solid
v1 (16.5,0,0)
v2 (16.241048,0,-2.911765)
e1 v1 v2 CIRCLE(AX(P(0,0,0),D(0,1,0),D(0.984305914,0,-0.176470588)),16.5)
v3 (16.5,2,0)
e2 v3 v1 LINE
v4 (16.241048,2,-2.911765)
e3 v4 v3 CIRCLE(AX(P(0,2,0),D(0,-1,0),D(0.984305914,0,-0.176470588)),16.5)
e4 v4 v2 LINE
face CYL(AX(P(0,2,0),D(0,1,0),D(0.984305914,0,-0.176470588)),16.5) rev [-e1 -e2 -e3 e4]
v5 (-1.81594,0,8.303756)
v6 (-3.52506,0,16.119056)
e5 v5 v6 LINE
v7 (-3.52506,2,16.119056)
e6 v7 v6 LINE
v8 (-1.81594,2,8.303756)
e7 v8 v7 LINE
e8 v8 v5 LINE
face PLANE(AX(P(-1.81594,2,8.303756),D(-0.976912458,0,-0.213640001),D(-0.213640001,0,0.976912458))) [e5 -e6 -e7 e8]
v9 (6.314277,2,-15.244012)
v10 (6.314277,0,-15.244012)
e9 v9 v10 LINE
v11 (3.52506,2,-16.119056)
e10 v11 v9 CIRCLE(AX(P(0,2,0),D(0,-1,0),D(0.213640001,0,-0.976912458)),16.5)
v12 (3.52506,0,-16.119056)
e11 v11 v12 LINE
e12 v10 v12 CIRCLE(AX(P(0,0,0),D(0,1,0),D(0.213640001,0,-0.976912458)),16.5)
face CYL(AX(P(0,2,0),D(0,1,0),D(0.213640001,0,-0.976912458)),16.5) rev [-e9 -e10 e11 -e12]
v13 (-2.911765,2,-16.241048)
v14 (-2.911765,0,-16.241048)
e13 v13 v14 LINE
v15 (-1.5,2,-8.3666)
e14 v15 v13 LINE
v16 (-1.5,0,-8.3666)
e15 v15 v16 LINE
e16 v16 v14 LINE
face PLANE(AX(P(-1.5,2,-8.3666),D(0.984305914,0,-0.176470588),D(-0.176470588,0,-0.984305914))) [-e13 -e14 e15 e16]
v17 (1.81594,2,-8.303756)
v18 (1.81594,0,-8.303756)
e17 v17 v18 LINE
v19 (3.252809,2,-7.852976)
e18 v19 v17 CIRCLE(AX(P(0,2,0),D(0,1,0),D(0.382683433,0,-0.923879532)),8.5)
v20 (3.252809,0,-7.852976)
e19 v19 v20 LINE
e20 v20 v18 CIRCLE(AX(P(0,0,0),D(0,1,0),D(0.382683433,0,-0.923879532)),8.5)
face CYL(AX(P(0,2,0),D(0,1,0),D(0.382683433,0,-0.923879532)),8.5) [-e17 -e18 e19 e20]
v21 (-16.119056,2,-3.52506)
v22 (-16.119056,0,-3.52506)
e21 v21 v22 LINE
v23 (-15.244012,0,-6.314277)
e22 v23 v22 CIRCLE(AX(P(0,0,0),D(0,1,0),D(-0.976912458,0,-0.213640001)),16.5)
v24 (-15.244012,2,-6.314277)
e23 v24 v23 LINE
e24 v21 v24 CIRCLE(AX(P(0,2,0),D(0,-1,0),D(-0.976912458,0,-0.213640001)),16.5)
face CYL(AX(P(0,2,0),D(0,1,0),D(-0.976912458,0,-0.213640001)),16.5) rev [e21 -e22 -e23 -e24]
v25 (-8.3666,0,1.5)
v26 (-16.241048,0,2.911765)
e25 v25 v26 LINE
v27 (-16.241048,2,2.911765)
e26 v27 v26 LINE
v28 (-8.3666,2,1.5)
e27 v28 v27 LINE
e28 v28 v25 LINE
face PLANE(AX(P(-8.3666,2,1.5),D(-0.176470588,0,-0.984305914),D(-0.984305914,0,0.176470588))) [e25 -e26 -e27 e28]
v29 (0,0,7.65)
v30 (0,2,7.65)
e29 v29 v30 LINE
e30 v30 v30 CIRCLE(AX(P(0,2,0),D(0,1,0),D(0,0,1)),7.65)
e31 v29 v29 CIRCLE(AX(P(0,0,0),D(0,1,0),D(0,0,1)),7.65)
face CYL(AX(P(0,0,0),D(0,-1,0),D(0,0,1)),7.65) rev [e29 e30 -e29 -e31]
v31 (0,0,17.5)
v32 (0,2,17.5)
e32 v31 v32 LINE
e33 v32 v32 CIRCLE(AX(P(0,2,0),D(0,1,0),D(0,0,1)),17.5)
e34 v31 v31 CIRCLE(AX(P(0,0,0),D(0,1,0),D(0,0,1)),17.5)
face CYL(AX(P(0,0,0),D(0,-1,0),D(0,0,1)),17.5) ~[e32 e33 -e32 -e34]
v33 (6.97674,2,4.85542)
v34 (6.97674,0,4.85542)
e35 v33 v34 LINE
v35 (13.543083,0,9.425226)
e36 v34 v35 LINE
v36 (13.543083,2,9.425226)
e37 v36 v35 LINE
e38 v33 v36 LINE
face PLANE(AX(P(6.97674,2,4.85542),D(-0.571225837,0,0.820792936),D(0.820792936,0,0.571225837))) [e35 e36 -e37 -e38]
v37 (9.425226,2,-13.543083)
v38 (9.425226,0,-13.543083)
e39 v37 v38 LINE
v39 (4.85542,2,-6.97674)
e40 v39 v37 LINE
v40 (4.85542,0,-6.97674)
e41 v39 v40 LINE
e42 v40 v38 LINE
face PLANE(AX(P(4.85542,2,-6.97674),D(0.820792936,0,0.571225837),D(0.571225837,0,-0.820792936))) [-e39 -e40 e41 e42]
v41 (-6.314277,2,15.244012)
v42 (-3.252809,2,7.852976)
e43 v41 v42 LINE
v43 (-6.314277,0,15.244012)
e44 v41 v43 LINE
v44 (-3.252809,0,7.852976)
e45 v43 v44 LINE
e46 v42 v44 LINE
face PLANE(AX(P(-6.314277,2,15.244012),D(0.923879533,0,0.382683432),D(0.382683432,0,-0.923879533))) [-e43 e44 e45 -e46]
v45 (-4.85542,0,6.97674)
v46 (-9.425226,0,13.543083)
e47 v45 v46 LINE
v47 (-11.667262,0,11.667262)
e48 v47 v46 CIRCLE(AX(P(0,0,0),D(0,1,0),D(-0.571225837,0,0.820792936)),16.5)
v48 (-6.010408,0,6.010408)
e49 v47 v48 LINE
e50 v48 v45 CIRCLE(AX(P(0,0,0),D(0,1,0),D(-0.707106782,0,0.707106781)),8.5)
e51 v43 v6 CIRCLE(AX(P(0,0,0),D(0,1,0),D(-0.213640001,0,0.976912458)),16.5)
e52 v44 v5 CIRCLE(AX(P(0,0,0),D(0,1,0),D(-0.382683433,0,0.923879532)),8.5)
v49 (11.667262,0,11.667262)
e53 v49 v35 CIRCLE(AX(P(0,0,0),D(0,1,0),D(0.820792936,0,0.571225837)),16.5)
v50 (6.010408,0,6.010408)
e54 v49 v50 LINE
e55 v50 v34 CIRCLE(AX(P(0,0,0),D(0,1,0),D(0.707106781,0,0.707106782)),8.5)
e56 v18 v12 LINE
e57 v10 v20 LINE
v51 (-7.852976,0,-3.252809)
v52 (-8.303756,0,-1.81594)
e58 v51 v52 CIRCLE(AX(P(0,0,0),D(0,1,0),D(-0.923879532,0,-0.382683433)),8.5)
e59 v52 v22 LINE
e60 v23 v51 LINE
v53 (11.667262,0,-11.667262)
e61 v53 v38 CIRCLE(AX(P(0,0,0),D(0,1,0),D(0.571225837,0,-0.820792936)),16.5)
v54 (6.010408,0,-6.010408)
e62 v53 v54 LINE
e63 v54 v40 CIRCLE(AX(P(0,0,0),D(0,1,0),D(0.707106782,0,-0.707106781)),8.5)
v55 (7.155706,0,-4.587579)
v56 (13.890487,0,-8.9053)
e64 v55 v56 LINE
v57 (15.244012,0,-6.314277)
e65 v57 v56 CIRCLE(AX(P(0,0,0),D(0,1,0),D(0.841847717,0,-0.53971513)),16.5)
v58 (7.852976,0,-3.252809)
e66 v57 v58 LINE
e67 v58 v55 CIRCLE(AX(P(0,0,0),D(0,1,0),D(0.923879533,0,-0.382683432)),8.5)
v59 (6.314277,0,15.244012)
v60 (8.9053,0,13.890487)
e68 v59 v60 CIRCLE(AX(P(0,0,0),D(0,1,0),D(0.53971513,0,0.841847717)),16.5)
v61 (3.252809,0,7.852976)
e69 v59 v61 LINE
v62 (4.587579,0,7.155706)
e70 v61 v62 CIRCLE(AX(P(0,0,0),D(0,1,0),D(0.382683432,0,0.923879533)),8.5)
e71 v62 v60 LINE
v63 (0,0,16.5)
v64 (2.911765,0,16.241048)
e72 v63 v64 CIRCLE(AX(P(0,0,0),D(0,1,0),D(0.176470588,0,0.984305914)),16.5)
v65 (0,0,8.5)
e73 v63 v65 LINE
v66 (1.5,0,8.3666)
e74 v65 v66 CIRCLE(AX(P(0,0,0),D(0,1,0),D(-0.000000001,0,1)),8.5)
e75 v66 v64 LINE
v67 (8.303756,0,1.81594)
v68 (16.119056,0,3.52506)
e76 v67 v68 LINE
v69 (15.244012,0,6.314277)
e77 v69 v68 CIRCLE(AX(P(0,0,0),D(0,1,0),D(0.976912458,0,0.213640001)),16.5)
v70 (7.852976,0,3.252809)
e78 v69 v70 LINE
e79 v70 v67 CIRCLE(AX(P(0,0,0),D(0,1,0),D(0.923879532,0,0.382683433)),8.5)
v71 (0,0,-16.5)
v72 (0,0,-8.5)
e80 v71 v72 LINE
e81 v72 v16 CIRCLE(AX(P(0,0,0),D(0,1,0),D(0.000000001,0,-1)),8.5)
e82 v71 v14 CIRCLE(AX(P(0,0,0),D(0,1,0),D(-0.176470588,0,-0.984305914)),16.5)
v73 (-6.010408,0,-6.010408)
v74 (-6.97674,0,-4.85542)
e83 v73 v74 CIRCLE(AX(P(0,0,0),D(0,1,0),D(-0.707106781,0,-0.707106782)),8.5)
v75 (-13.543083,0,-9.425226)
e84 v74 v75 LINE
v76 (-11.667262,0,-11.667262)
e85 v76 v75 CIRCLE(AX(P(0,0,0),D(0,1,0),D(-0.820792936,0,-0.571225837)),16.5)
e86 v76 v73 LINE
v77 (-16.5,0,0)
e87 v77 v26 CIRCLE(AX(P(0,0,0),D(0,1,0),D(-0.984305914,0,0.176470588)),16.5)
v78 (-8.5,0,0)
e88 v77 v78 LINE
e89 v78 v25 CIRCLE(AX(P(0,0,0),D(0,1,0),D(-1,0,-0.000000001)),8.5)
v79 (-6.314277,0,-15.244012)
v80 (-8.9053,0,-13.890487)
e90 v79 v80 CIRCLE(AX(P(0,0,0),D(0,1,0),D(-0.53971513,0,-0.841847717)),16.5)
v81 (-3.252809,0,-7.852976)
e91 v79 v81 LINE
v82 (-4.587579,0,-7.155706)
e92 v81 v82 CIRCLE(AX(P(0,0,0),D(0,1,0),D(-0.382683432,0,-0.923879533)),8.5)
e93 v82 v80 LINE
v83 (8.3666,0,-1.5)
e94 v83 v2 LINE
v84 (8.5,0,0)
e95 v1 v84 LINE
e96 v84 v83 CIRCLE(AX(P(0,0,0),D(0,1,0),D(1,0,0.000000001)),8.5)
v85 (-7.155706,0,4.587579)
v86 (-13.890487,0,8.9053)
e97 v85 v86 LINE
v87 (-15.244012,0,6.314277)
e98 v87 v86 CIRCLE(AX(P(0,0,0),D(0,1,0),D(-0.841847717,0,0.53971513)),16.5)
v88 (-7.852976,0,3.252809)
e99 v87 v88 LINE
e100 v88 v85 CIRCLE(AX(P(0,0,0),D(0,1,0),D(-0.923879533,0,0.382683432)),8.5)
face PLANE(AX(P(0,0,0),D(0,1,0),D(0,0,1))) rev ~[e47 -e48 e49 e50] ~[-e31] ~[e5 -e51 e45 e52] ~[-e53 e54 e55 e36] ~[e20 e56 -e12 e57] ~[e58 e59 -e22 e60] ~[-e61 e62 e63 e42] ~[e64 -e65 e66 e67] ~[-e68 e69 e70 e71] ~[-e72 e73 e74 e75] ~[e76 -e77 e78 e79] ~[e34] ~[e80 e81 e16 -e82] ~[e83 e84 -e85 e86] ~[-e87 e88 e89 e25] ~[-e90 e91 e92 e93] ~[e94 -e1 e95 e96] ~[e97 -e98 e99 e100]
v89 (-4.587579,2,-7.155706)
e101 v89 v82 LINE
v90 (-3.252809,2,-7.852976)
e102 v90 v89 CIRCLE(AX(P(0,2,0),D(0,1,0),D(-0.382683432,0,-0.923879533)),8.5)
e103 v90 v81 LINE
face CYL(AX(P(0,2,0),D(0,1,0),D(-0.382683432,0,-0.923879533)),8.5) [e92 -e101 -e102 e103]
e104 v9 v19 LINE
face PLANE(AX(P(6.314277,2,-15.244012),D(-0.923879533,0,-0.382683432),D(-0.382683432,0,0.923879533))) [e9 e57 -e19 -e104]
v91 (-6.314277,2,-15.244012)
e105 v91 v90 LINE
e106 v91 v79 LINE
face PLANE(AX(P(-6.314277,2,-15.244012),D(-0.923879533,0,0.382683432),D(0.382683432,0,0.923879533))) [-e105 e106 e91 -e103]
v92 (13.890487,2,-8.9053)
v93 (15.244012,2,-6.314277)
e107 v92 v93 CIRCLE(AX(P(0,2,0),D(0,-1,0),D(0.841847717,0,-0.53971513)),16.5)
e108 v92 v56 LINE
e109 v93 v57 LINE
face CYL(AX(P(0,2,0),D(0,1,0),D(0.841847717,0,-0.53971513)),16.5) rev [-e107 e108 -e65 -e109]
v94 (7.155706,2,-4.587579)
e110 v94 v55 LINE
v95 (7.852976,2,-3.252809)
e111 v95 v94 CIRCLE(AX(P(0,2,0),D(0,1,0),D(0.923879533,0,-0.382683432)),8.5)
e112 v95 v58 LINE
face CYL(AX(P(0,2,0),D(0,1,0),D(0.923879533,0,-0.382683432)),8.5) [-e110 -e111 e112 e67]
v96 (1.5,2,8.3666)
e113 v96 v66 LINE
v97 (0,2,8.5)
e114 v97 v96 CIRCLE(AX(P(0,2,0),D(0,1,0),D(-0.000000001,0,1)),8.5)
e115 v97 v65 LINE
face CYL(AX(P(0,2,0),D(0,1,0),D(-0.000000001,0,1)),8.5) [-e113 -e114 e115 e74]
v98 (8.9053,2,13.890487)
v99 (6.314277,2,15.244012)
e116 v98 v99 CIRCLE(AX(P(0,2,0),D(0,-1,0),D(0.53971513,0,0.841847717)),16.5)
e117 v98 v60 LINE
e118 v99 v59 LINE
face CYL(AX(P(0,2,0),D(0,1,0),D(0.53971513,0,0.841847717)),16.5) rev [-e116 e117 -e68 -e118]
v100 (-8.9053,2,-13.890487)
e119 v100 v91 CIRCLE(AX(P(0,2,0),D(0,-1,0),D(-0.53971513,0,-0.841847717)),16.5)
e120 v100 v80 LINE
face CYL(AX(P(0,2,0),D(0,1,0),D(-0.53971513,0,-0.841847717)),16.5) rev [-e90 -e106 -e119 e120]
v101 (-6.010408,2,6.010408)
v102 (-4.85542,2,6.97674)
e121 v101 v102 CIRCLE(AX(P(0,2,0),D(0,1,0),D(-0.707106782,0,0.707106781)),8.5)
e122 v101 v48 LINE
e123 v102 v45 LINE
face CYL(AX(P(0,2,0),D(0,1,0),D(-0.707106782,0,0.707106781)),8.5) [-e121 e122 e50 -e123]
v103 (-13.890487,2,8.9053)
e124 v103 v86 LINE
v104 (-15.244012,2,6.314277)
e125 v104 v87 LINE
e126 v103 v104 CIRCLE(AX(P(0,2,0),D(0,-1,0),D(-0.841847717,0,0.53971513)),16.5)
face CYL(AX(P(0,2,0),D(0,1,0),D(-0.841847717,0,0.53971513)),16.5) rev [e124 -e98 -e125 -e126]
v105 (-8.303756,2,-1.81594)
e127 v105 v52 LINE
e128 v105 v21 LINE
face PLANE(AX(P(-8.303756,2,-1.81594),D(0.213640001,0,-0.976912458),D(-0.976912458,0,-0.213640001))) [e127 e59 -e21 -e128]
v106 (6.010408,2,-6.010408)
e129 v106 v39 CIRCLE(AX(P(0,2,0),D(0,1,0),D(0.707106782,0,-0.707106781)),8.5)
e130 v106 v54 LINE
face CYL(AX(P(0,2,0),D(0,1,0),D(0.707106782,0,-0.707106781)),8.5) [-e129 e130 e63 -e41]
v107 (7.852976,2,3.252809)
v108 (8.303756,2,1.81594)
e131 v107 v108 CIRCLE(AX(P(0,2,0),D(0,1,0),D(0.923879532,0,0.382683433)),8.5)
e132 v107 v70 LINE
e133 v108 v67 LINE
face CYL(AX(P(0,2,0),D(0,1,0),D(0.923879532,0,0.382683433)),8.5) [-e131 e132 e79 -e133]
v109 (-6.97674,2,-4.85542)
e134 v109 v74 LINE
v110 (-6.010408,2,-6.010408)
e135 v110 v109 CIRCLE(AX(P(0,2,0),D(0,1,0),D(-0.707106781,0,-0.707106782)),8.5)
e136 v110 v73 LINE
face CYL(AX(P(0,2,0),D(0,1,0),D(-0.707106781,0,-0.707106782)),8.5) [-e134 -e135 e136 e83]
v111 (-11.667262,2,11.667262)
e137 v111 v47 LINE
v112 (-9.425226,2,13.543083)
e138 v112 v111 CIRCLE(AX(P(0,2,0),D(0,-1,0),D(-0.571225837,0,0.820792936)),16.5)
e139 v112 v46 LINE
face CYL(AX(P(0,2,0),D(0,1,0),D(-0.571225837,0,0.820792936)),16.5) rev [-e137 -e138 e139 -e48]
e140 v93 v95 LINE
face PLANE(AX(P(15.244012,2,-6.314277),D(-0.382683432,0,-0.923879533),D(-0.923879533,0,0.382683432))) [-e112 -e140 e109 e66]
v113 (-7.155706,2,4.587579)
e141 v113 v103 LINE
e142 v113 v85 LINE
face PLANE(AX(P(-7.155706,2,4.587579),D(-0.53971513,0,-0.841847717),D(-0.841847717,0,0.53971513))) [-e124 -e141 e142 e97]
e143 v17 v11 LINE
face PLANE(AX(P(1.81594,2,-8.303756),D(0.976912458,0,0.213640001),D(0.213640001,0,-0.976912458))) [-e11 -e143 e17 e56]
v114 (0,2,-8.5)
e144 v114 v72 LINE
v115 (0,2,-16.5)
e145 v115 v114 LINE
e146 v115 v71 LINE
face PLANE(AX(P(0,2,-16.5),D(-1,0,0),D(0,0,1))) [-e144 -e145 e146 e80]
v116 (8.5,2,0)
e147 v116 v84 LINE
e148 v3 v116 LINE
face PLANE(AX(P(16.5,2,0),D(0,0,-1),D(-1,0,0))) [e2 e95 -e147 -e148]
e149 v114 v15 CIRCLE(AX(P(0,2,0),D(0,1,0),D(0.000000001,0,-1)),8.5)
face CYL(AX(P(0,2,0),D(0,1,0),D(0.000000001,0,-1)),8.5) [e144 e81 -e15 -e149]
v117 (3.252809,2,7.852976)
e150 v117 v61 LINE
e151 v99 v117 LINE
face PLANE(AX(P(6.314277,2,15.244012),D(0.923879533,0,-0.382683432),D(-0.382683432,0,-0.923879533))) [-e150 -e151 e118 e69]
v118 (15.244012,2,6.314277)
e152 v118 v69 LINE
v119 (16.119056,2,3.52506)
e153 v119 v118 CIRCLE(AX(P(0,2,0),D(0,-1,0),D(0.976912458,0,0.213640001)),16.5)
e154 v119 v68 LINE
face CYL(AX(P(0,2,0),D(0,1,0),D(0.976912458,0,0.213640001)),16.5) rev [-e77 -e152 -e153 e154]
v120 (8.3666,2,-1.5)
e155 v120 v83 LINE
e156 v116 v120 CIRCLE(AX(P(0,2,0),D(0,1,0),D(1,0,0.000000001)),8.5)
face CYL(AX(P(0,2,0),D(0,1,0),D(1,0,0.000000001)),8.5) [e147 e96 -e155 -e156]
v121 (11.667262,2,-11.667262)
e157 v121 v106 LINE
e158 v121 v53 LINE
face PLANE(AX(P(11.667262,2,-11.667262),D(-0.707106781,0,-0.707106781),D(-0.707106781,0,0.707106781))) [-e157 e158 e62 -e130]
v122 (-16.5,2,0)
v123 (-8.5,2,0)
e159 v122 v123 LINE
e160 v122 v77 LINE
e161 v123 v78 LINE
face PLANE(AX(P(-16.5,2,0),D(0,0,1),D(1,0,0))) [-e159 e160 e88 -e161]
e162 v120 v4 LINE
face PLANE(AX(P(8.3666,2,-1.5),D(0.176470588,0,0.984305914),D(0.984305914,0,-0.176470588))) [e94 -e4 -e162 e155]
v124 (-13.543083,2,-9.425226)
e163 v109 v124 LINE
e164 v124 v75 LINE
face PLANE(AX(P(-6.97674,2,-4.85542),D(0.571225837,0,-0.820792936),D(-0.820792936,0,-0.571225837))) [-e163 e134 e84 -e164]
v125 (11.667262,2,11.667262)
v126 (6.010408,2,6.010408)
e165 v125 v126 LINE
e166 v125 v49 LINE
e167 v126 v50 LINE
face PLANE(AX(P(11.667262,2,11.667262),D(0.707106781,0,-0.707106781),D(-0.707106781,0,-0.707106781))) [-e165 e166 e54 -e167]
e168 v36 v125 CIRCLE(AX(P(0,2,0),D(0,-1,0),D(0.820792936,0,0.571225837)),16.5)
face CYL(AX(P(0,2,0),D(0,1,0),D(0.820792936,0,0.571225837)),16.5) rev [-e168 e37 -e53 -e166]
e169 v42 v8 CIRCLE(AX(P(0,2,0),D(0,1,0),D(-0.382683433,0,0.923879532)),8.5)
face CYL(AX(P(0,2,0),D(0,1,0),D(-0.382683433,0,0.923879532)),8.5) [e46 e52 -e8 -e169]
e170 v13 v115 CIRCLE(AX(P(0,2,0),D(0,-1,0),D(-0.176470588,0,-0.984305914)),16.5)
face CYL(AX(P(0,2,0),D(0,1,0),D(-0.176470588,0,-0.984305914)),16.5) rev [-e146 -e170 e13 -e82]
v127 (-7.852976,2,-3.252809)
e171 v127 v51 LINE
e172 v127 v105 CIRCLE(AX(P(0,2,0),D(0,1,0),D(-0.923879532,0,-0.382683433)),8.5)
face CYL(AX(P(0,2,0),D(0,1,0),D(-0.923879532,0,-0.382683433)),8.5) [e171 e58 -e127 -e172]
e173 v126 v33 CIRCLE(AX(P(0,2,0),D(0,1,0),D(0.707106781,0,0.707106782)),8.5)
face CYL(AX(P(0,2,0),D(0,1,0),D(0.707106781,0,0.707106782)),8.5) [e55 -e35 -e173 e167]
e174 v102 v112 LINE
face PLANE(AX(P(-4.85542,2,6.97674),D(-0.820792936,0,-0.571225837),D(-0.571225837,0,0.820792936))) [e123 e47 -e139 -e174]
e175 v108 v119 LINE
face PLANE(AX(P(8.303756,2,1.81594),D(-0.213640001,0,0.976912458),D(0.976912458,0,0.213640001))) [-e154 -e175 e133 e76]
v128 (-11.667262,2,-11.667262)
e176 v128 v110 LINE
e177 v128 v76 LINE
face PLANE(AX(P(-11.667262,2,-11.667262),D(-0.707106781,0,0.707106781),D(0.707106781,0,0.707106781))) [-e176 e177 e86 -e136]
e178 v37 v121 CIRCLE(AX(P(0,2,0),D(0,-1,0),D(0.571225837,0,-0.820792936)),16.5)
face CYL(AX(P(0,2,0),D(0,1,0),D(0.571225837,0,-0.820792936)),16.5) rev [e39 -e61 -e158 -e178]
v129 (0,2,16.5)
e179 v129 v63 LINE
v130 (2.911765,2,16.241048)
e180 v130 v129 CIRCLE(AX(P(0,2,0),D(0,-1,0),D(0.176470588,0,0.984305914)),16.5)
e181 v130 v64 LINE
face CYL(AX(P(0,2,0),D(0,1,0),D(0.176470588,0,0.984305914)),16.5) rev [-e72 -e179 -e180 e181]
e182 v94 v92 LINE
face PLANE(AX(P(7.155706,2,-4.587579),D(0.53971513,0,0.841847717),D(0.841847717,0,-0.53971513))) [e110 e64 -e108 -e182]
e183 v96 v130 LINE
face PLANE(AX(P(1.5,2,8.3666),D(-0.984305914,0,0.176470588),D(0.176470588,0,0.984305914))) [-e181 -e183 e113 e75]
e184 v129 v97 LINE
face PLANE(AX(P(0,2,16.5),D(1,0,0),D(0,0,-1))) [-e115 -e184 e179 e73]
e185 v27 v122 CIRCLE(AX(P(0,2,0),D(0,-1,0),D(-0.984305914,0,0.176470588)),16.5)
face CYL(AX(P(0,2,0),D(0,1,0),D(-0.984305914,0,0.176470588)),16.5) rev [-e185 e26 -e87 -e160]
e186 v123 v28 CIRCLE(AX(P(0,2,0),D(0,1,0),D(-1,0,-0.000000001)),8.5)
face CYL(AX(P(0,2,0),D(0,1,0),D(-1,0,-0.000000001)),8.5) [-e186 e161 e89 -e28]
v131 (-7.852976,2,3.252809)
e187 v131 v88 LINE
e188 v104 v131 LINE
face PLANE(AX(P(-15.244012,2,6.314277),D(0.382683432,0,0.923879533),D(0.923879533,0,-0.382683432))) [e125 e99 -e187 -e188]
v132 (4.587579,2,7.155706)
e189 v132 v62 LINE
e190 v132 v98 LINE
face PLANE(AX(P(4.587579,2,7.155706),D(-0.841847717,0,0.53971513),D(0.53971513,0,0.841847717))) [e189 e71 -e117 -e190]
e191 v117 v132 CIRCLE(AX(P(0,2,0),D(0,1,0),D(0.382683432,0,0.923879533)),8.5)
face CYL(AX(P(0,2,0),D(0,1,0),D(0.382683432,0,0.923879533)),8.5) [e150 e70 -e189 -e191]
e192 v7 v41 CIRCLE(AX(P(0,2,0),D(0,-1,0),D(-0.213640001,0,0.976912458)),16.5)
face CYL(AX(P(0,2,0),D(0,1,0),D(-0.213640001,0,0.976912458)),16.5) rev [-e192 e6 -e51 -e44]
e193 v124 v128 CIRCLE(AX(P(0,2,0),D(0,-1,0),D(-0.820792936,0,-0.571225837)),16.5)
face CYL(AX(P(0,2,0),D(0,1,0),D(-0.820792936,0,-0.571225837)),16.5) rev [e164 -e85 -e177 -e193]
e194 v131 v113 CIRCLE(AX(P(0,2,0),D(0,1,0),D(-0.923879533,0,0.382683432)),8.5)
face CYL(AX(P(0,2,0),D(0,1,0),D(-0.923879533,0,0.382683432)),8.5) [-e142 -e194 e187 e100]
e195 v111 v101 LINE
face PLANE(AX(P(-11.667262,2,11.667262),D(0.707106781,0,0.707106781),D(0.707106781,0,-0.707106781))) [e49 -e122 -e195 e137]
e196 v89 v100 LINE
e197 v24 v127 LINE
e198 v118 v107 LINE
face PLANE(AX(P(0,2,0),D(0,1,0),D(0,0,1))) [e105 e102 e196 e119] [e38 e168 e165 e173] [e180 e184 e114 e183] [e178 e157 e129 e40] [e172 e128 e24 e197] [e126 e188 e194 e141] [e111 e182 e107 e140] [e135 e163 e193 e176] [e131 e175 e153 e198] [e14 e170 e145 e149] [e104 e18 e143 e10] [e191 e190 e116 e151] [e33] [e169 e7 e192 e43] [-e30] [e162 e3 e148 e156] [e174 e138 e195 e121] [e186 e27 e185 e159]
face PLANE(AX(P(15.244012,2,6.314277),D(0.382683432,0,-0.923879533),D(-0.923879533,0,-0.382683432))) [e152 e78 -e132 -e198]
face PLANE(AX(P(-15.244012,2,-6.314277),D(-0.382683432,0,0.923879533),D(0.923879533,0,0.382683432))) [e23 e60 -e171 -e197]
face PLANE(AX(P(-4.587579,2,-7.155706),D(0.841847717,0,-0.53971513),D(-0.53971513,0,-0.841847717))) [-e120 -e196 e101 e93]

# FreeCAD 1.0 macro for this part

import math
import FreeCAD as App
import Part
import Sketcher

doc = App.newDocument("Part")
body = doc.addObject("PartDesign::Body", "Body")

# Sketch on XZ plane
sketch1 = doc.addObject("Sketcher::SketchObject", "Sketch")
body.addObject(sketch1)
sketch1.AttachmentSupport = (doc.XZ_Plane, [""])
sketch1.MapMode = "FlatFace"
sketch1.addGeometry(Part.Circle(App.Vector(0, 0, 0), App.Vector(0, 0, 1), 18), False)
sketch1.addGeometry(Part.Circle(App.Vector(0, 0, 0), App.Vector(0, 0, 1), 8), False)
sketch1.addConstraint(Sketcher.Constraint("Coincident", 0, 3, -1, 1))
sketch1.addConstraint(Sketcher.Constraint("Coincident", 1, 3, -1, 1))
sketch1.addConstraint(Sketcher.Constraint("Diameter", 0, 35.0))
sketch1.addConstraint(Sketcher.Constraint("Diameter", 1, 15.3))
pad1 = doc.addObject("PartDesign::Pad", "Pad")
body.addObject(pad1)
pad1.Profile = sketch1
pad1.Length = 2
pad1.Reversed = True

# Sketch on XZ plane
sketch2 = doc.addObject("Sketcher::SketchObject", "Sketch001")
body.addObject(sketch2)
sketch2.AttachmentSupport = (doc.XZ_Plane, [""])
sketch2.MapMode = "FlatFace"
sketch2.AttachmentOffset = App.Placement(App.Vector(0, 0, -2), App.Rotation())
sketch2.addGeometry(Part.LineSegment(App.Vector(2.9, 16.2, 0), App.Vector(1.5, 8.4, 0)), False)
sketch2.addGeometry(Part.ArcOfCircle(Part.Circle(App.Vector(0, 0, 0), App.Vector(0, 0, 1), 8.5), math.radians(79.84), math.radians(90)), False)
sketch2.addGeometry(Part.LineSegment(App.Vector(0, 8.5, 0), App.Vector(0, 16.5, 0)), False)
sketch2.addGeometry(Part.ArcOfCircle(Part.Circle(App.Vector(0, 0, 0), App.Vector(0, 0, 1), 16.5), math.radians(79.84), math.radians(90)), False)
sketch2.addConstraint(Sketcher.Constraint("Coincident", 0, 2, 1, 1))
sketch2.addConstraint(Sketcher.Constraint("Coincident", 1, 2, 2, 1))
sketch2.addConstraint(Sketcher.Constraint("Coincident", 2, 2, 3, 2))
sketch2.addConstraint(Sketcher.Constraint("Coincident", 3, 1, 0, 1))
sketch2.addConstraint(Sketcher.Constraint("Vertical", 2))
sketch2.addConstraint(Sketcher.Constraint("Coincident", 1, 3, -1, 1))
sketch2.addConstraint(Sketcher.Constraint("Coincident", 3, 3, -1, 1))
sketch2.addConstraint(Sketcher.Constraint("PointOnObject", 1, 2, -2))
sketch2.addConstraint(Sketcher.Constraint("Radius", 1, 8.5))
sketch2.addConstraint(Sketcher.Constraint("Radius", 3, 16.5))
sketch2.addConstraint(Sketcher.Constraint("DistanceX", -1, 1, 0, 2, 1.5))
sketch2.addConstraint(Sketcher.Constraint("DistanceX", -1, 1, 3, 1, 2.911765))
pocket1 = doc.addObject("PartDesign::Pocket", "Pocket")
body.addObject(pocket1)
pocket1.Profile = sketch2
pocket1.Length = 10
pocket1.Reversed = True
doc.recompute()

polarpattern = doc.addObject("PartDesign::PolarPattern", "PolarPattern")
body.addObject(polarpattern)
polarpattern.Originals = [pocket1]
polarpattern.Axis = (doc.Y_Axis, [""])
polarpattern.Angle = 360
polarpattern.Occurrences = 16
body.Tip = polarpattern

doc.recompute()
